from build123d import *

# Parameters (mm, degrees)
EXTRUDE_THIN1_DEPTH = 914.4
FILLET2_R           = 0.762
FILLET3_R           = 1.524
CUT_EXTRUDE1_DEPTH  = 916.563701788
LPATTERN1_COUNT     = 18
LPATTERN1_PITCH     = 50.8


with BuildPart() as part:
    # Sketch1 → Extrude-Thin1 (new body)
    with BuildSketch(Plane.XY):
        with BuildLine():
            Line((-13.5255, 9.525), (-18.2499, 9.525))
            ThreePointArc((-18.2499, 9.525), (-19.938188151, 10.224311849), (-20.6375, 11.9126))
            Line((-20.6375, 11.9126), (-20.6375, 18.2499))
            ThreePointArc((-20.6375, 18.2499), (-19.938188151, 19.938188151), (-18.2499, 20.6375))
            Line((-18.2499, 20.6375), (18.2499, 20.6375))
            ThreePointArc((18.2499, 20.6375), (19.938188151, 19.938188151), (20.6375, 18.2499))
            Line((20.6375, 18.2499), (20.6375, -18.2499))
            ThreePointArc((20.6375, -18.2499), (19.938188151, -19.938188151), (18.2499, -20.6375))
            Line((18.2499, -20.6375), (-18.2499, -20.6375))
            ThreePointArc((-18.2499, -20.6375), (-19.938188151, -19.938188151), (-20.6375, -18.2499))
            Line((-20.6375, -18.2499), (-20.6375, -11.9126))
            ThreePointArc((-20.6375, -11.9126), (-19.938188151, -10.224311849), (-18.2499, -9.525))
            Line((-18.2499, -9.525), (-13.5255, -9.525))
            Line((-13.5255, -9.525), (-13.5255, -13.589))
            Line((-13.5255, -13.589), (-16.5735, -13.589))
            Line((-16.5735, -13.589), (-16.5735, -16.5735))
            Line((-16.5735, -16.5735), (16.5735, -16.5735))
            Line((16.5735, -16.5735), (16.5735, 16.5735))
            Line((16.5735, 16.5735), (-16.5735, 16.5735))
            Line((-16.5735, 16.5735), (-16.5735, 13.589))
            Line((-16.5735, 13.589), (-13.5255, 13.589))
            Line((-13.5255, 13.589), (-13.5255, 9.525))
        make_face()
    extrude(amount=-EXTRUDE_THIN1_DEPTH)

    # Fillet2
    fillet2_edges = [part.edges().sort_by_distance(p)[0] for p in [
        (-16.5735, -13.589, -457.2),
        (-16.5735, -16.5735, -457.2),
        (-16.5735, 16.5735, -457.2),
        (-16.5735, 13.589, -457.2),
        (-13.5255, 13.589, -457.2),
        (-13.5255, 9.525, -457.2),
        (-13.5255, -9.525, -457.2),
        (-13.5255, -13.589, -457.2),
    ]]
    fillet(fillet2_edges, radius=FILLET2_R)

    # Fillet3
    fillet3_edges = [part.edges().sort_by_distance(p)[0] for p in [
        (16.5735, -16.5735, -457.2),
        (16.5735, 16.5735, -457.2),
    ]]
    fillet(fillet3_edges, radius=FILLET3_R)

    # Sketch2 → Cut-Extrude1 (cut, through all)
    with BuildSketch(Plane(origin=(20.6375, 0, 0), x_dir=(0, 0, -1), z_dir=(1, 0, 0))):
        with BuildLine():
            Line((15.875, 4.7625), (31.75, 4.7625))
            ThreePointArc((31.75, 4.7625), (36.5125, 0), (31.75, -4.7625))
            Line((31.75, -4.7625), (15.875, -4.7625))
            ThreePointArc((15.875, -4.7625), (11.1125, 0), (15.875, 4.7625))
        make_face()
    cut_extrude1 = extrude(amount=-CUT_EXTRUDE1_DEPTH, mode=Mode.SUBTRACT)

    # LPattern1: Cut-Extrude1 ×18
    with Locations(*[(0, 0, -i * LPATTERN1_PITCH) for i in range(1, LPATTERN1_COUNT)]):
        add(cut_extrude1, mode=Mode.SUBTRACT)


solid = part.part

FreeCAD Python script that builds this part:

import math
import FreeCAD as App
import Part
import Sketcher
from FreeCAD import Vector
Q = App.Units.Quantity


def edges_at(feature, points):
    """Names of the edges that pass closest to the given points."""
    edges = feature.Shape.Edges
    near = lambda p: min(range(len(edges)), key=lambda i: edges[i].distToShape(Part.Vertex(*p))[0])
    return sorted({f"Edge{near(p) + 1}" for p in points})

doc = App.newDocument("Part")
body = doc.addObject("PartDesign::Body", "Body")

# Sketch on XY plane
sketch1 = body.newObject("Sketcher::SketchObject", "Sketch")
sketch1.AttachmentSupport = (doc.getObject("XY_Plane"), [""])
sketch1.MapMode = "FlatFace"
sketch1.addGeometry([
    Part.LineSegment(Vector(-18.2499, 9.525, 0), Vector(-13.5255, 9.525, 0)),  # 0
    Part.LineSegment(Vector(-13.5255, 9.525, 0), Vector(-13.5255, 13.589, 0)),  # 1
    Part.LineSegment(Vector(-13.5255, 13.589, 0), Vector(-16.5735, 13.589, 0)),  # 2
    Part.LineSegment(Vector(-16.5735, 13.589, 0), Vector(-16.5735, 16.5735, 0)),  # 3
    Part.LineSegment(Vector(-16.5735, 16.5735, 0), Vector(16.5735, 16.5735, 0)),  # 4
    Part.LineSegment(Vector(16.5735, 16.5735, 0), Vector(16.5735, -16.5735, 0)),  # 5
    Part.LineSegment(Vector(16.5735, -16.5735, 0), Vector(-16.5735, -16.5735, 0)),  # 6
    Part.LineSegment(Vector(-16.5735, -16.5735, 0), Vector(-16.5735, -13.589, 0)),  # 7
    Part.LineSegment(Vector(-16.5735, -13.589, 0), Vector(-13.5255, -13.589, 0)),  # 8
    Part.LineSegment(Vector(-13.5255, -13.589, 0), Vector(-13.5255, -9.525, 0)),  # 9
    Part.LineSegment(Vector(-13.5255, -9.525, 0), Vector(-18.2499, -9.525, 0)),  # 10
    Part.ArcOfCircle(Part.Circle(Vector(-18.2499, -11.9126, 0), Vector(0, 0, 1), 2.3876), math.radians(90), math.radians(180)),  # 11
    Part.LineSegment(Vector(-20.6375, -11.9126, 0), Vector(-20.6375, -18.2499, 0)),  # 12
    Part.ArcOfCircle(Part.Circle(Vector(-18.2499, -18.2499, 0), Vector(0, 0, 1), 2.3876), math.radians(180), math.radians(270)),  # 13
    Part.LineSegment(Vector(-18.2499, -20.6375, 0), Vector(18.2499, -20.6375, 0)),  # 14
    Part.ArcOfCircle(Part.Circle(Vector(18.2499, -18.2499, 0), Vector(0, 0, 1), 2.3876), math.radians(-90), math.radians(0)),  # 15
    Part.LineSegment(Vector(20.6375, -18.2499, 0), Vector(20.6375, 18.2499, 0)),  # 16
    Part.ArcOfCircle(Part.Circle(Vector(18.2499, 18.2499, 0), Vector(0, 0, 1), 2.3876), math.radians(0), math.radians(90)),  # 17
    Part.LineSegment(Vector(18.2499, 20.6375, 0), Vector(-18.2499, 20.6375, 0)),  # 18
    Part.ArcOfCircle(Part.Circle(Vector(-18.2499, 18.2499, 0), Vector(0, 0, 1), 2.3876), math.radians(90), math.radians(180)),  # 19
    Part.LineSegment(Vector(-20.6375, 18.2499, 0), Vector(-20.6375, 11.9126, 0)),  # 20
    Part.ArcOfCircle(Part.Circle(Vector(-18.2499, 11.9126, 0), Vector(0, 0, 1), 2.3876), math.radians(180), math.radians(270)),  # 21
], False)
sketch1.addConstraint([
    Sketcher.Constraint("Coincident", 0, 2, 1, 1),
    Sketcher.Constraint("Coincident", 1, 2, 2, 1),
    Sketcher.Constraint("Coincident", 2, 2, 3, 1),
    Sketcher.Constraint("Coincident", 3, 2, 4, 1),
    Sketcher.Constraint("Coincident", 4, 2, 5, 1),
    Sketcher.Constraint("Coincident", 5, 2, 6, 1),
    Sketcher.Constraint("Coincident", 6, 2, 7, 1),
    Sketcher.Constraint("Coincident", 7, 2, 8, 1),
    Sketcher.Constraint("Coincident", 8, 2, 9, 1),
    Sketcher.Constraint("Coincident", 9, 2, 10, 1),
    Sketcher.Constraint("Tangent", 10, 2, 11, 1),
    Sketcher.Constraint("Tangent", 11, 2, 12, 1),
    Sketcher.Constraint("Tangent", 12, 2, 13, 1),
    Sketcher.Constraint("Tangent", 13, 2, 14, 1),
    Sketcher.Constraint("Tangent", 14, 2, 15, 1),
    Sketcher.Constraint("Tangent", 15, 2, 16, 1),
    Sketcher.Constraint("Tangent", 16, 2, 17, 1),
    Sketcher.Constraint("Tangent", 17, 2, 18, 1),
    Sketcher.Constraint("Tangent", 18, 2, 19, 1),
    Sketcher.Constraint("Tangent", 19, 2, 20, 1),
    Sketcher.Constraint("Tangent", 20, 2, 21, 1),
    Sketcher.Constraint("Tangent", 21, 2, 0, 1),
    Sketcher.Constraint("Horizontal", 0),
    Sketcher.Constraint("Vertical", 1),
    Sketcher.Constraint("Horizontal", 2),
    Sketcher.Constraint("Vertical", 3),
    Sketcher.Constraint("Horizontal", 4),
    Sketcher.Constraint("Vertical", 5),
    Sketcher.Constraint("Horizontal", 6),
    Sketcher.Constraint("Vertical", 7),
    Sketcher.Constraint("Horizontal", 8),
    Sketcher.Constraint("Vertical", 9),
    Sketcher.Constraint("Horizontal", 10),
    Sketcher.Constraint("Vertical", 12),
    Sketcher.Constraint("Horizontal", 14),
    Sketcher.Constraint("Vertical", 16),
    Sketcher.Constraint("Horizontal", 18),
    Sketcher.Constraint("Vertical", 20),
    Sketcher.Constraint("Equal", 11, 13),
    Sketcher.Constraint("Equal", 13, 15),
    Sketcher.Constraint("Equal", 15, 17),
    Sketcher.Constraint("Equal", 17, 19),
    Sketcher.Constraint("Equal", 19, 21),
    Sketcher.Constraint("Symmetric", 13, 3, 17, 3, -1, 1),
    Sketcher.Constraint("Symmetric", 3, 2, 5, 2, -1, 1),
    Sketcher.Constraint("Symmetric", 11, 3, 21, 3, -1),
    Sketcher.Constraint("Symmetric", 2, 2, 7, 2, -1),
    Sketcher.Constraint("Vertical", 1, 2, 8, 2),
    Sketcher.Constraint("Equal", 6, 5),
    Sketcher.Constraint("Equal", 18, 16),
    Sketcher.Constraint("Radius", 11, Q("0.094 in")),
    Sketcher.Constraint("DistanceX", 2, 2, 2, 1, Q("0.12 in")),
    Sketcher.Constraint("DistanceY", 1, 1, 1, 2, Q("0.16 in")),
    Sketcher.Constraint("DistanceX", 0, 1, 0, 2, Q("0.186 in")),
    Sketcher.Constraint("DistanceX", 4, 1, 4, 2, Q("1.305 in")),
    Sketcher.Constraint("DistanceY", 7, 2, 0, 2, Q("0.91 in")),
])
pad1 = body.newObject("PartDesign::Pad", "Pad")
pad1.Profile = sketch1
pad1.Length = Q("36 in")
pad1.Reversed = True
doc.recompute()

fillet = body.newObject("PartDesign::Fillet", "Fillet")
fillet.Base = (pad1, edges_at(pad1, [
    (-16.573, -13.589, -457.2),
    (-16.573, -16.573, -457.2),
    (-16.573, 16.573, -457.2),
    (-16.573, 13.589, -457.2),
    (-13.525, 13.589, -457.2),
    (-13.525, 9.525, -457.2),
    (-13.525, -9.525, -457.2),
    (-13.525, -13.589, -457.2),
]))
fillet.Radius = Q("0.03 in")
doc.recompute()

fillet2 = body.newObject("PartDesign::Fillet", "Fillet001")
fillet2.Base = (fillet, edges_at(fillet, [(16.573, -16.573, -457.2), (16.573, 16.573, -457.2)]))
fillet2.Radius = Q("0.06 in")

# Sketch on YZ plane
sketch2 = body.newObject("Sketcher::SketchObject", "Sketch001")
sketch2.AttachmentSupport = (doc.getObject("YZ_Plane"), [""])
sketch2.MapMode = "FlatFace"
sketch2.AttachmentOffset = App.Placement(Vector(0, 0, 0.8125 * 25.4), App.Rotation())
sketch2.addGeometry([
    Part.LineSegment(Vector(4.7625, -31.75, 0), Vector(4.7625, -15.875, 0)),
    Part.ArcOfCircle(Part.Circle(Vector(0, -15.875, 0), Vector(0, 0, 1), 4.7625), math.radians(0), math.radians(180)),
    Part.LineSegment(Vector(-4.7625, -15.875, 0), Vector(-4.7625, -31.75, 0)),
    Part.ArcOfCircle(Part.Circle(Vector(0, -31.75, 0), Vector(0, 0, 1), 4.7625), math.radians(180), math.radians(360)),
], False)
sketch2.addConstraint([
    Sketcher.Constraint("Tangent", 0, 2, 1, 1),
    Sketcher.Constraint("Tangent", 1, 2, 2, 1),
    Sketcher.Constraint("Tangent", 2, 2, 3, 1),
    Sketcher.Constraint("Tangent", 3, 2, 0, 1),
    Sketcher.Constraint("Vertical", 0),
    Sketcher.Constraint("Vertical", 2),
    Sketcher.Constraint("PointOnObject", 1, 3, -2),
    Sketcher.Constraint("Radius", 1, Q("0.1875 in")),
    Sketcher.Constraint("DistanceY", 0, 1, 0, 2, Q("0.625 in")),
    Sketcher.Constraint("DistanceY", 3, 3, -1, 1, Q("1.25 in")),
])
pocket1 = body.newObject("PartDesign::Pocket", "Pocket")
pocket1.Profile = sketch2
pocket1.Type = "ThroughAll"
doc.recompute()

linearpattern = body.newObject("PartDesign::LinearPattern", "LinearPattern")
linearpattern.Originals = [pocket1]
linearpattern.Direction = (doc.getObject("Z_Axis"), [""])
linearpattern.Mode = "offset"
linearpattern.Offset = Q("2 in")
linearpattern.Occurrences = 18
linearpattern.Reversed = True
body.Tip = linearpattern

doc.recompute()
